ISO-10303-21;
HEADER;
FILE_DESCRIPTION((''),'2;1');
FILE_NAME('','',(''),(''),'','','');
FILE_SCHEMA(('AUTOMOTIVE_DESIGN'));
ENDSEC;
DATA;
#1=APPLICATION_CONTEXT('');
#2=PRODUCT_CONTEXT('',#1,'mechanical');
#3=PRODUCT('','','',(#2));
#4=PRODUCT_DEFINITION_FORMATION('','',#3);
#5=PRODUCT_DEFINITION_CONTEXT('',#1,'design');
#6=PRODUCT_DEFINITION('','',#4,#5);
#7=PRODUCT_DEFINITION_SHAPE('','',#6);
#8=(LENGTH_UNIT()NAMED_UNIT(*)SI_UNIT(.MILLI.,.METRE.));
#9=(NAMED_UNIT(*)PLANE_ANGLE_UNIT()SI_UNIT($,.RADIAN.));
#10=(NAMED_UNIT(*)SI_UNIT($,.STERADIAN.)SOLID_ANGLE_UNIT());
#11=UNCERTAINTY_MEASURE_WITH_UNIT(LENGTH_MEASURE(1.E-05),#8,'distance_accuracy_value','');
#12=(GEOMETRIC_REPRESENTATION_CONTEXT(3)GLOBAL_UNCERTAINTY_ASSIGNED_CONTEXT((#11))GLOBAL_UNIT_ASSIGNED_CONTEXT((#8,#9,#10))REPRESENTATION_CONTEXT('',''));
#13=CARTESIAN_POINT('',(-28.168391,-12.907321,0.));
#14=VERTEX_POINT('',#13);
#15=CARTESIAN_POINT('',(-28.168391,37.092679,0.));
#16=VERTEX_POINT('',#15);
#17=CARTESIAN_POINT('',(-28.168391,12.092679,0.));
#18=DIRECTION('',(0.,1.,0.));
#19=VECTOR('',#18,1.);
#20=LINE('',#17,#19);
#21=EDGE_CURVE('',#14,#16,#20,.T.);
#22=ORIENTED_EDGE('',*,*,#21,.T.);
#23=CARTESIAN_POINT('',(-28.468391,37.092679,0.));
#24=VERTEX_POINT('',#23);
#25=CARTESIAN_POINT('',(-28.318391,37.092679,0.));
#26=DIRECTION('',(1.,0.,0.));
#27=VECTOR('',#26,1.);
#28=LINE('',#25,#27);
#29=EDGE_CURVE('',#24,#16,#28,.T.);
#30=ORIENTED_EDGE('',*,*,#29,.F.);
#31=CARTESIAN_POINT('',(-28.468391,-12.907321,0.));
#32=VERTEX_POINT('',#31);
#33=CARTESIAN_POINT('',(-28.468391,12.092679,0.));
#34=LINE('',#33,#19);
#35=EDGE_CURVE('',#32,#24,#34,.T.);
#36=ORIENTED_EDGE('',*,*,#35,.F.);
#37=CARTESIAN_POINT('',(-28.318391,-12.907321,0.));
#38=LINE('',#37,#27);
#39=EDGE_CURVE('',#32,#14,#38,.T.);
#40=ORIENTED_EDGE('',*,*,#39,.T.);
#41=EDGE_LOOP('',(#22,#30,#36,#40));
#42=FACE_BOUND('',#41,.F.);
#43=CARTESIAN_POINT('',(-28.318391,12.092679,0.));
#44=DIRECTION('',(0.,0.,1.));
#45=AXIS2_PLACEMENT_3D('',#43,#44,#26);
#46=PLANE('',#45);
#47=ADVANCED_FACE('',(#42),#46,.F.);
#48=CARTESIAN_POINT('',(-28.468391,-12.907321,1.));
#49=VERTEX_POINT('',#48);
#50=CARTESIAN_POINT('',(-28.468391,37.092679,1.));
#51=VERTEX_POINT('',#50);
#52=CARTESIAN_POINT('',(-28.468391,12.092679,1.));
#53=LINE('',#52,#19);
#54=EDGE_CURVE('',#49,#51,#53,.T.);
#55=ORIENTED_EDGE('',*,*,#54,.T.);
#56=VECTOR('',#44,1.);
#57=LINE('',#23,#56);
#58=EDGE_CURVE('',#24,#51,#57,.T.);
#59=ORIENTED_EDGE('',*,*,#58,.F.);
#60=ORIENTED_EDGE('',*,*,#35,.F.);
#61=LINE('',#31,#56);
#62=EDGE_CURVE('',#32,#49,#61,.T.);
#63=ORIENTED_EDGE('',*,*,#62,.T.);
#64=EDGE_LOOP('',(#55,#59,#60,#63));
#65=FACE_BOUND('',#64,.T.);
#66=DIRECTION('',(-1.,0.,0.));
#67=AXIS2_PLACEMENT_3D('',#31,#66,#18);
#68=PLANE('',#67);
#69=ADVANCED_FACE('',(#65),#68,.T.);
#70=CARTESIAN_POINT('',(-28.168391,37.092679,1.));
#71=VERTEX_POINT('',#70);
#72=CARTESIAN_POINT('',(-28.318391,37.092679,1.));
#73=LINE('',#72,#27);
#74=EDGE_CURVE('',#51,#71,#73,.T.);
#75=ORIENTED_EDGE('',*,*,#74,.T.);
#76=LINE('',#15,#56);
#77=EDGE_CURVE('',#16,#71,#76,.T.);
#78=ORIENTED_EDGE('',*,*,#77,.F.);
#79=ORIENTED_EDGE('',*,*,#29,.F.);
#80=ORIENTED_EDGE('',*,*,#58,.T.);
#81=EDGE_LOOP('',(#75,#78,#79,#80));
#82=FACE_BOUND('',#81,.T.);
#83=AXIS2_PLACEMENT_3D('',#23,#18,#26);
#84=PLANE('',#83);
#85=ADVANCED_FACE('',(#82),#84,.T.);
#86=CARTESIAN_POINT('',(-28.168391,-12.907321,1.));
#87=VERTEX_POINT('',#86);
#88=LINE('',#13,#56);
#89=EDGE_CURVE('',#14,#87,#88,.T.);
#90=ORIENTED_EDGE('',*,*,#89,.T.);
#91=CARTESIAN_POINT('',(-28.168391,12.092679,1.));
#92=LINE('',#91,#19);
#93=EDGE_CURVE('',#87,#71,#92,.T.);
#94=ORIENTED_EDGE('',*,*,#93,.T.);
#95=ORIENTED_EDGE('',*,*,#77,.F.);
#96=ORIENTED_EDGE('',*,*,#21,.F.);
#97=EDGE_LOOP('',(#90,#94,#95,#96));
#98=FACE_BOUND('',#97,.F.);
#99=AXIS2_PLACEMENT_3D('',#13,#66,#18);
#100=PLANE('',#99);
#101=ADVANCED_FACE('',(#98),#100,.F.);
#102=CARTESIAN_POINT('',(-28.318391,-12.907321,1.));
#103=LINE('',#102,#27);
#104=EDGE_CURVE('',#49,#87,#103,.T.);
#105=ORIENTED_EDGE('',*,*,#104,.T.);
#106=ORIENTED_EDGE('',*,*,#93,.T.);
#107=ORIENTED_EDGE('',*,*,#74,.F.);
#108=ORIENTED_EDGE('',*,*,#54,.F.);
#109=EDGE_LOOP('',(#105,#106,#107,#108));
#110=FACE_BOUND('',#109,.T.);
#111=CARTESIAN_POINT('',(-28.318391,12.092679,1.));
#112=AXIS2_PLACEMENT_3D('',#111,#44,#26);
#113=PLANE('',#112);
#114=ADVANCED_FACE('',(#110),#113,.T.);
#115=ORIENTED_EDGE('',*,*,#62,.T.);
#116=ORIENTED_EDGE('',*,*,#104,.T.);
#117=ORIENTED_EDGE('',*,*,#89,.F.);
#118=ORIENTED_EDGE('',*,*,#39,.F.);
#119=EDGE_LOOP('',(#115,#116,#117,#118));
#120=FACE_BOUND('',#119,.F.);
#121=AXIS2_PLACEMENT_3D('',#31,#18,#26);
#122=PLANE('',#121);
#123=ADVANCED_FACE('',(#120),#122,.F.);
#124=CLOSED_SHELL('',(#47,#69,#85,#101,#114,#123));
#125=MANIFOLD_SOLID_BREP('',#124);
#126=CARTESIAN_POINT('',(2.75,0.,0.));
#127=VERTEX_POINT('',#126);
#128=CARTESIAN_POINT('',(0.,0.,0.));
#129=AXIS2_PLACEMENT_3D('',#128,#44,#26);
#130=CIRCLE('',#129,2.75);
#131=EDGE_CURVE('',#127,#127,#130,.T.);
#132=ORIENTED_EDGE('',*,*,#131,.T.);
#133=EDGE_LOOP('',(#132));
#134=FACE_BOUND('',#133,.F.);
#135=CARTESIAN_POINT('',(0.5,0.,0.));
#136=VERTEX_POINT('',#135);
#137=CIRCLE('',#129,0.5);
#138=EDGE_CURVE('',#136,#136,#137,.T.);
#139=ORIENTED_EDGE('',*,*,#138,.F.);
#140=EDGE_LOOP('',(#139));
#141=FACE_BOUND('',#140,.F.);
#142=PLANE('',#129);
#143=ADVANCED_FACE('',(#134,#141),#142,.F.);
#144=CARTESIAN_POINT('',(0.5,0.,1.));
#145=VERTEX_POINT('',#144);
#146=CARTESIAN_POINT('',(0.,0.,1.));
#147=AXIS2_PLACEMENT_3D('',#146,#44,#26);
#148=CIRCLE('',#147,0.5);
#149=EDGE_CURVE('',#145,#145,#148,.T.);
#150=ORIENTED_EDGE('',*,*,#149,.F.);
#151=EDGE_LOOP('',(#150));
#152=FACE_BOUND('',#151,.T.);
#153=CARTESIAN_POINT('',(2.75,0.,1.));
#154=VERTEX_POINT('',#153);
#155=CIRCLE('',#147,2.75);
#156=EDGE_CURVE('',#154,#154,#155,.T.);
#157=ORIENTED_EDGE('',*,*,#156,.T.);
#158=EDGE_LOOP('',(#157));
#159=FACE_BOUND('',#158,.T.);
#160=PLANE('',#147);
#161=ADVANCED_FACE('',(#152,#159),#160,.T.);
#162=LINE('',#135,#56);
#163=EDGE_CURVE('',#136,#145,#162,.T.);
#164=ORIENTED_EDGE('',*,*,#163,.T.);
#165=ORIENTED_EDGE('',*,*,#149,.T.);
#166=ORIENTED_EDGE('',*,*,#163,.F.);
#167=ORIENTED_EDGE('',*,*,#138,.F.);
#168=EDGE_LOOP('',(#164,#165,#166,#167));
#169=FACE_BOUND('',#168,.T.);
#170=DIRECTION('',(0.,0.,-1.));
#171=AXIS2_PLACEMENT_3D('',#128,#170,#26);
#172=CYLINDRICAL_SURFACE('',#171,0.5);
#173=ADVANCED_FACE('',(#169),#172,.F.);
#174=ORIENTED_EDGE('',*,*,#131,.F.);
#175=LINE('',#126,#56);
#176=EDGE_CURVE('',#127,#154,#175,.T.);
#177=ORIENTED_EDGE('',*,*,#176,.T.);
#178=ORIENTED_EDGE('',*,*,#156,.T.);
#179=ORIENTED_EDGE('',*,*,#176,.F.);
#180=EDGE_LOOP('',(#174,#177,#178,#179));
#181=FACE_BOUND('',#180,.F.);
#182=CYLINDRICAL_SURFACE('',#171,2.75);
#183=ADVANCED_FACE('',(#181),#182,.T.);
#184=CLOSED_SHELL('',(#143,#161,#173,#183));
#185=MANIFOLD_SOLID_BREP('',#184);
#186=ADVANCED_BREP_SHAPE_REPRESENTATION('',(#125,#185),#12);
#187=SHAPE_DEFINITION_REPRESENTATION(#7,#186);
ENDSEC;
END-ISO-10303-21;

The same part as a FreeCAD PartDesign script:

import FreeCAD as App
import Part
import Sketcher

V = App.Vector
Q = App.Units.Quantity


def add_polygon(sketch, points):
    """Adds a closed chain of lines whose ends are joined by coincident constraints."""
    first, n = sketch.GeometryCount, len(points)
    for a, b in zip(points, points[1:] + points[:1]):
        sketch.addGeometry(Part.LineSegment(App.Vector(*a, 0), App.Vector(*b, 0)), False)
    for i in range(n):
        sketch.addConstraint(Sketcher.Constraint("Coincident", first + i, 2, first + (i + 1) % n, 1))

doc = App.newDocument("Part")
body = doc.addObject("PartDesign::Body", "Body")
body.AllowCompound = True

sketch1 = body.newObject("Sketcher::SketchObject", "Sketch")
sketch1.AttachmentSupport = (doc.getObject("XY_Plane"), [""])
sketch1.MapMode = "FlatFace"
sketch1.addGeometry(Part.Circle(V(0, 0, 0), V(0, 0, 1), 2.75), False)
sketch1.addGeometry(Part.Circle(V(0, 0, 0), V(0, 0, 1), 0.5), False)
add_polygon(sketch1, [(-28.468391, 37.092679), (-28.468391, -12.907321), (-28.168391, -12.907321), (-28.168391, 37.092679)])
sketch1.addConstraint(Sketcher.Constraint("Vertical", 2))
sketch1.addConstraint(Sketcher.Constraint("Horizontal", 3))
sketch1.addConstraint(Sketcher.Constraint("Vertical", 4))
sketch1.addConstraint(Sketcher.Constraint("Horizontal", 5))
sketch1.addConstraint(Sketcher.Constraint("Coincident", 0, 3, -1, 1))
sketch1.addConstraint(Sketcher.Constraint("Coincident", 1, 3, -1, 1))
sketch1.addConstraint(Sketcher.Constraint("Diameter", 1, Q("1 mm")))
sketch1.addConstraint(Sketcher.Constraint("Diameter", 0, Q("5.5 mm")))
sketch1.addConstraint(Sketcher.Constraint("DistanceY", 2, 2, 2, 1, Q("50 mm")))
sketch1.addConstraint(Sketcher.Constraint("DistanceX", 3, 1, 3, 2, Q("0.3 mm")))
sketch1.addConstraint(Sketcher.Constraint("DistanceX", 2, 2, -1, 1, Q("28.468391 mm")))
sketch1.addConstraint(Sketcher.Constraint("DistanceY", 2, 2, -1, 1, Q("12.907321 mm")))
pad1 = body.newObject("PartDesign::Pad", "Pad")
pad1.Profile = sketch1
pad1.Length = 1

doc.recompute()
